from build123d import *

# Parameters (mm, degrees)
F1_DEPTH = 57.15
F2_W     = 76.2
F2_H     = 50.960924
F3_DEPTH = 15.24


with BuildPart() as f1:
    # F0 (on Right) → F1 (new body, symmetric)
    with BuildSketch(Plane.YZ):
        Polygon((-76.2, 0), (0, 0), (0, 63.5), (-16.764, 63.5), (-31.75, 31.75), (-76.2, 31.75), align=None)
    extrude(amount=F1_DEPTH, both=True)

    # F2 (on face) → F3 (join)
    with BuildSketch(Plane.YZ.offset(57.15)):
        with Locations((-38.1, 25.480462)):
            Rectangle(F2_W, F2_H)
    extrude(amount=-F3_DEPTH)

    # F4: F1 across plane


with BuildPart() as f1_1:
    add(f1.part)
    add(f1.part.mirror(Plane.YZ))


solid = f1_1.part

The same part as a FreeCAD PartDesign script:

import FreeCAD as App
import Part
import Sketcher
Q = App.Units.Quantity

doc = App.newDocument("Part")
params = doc.addObject("Spreadsheet::Sheet", "Params")
for row, (alias, value) in enumerate([
    ("sketch1_width", "3 in"),
    ("sketch1_height", "2.5 in"),
    ("sketch1_width2", "0.66 in"),
    ("sketch1_width3", "1.75 in"),
    ("sketch1_height2", "1.25 in"),
    ("pad1_length", "4.5 in"),
    ("sketch2_width", "3 in"),
    ("pad2_length", "0.6 in"),
], start=1):
    params.set(f"A{row}", alias)
    params.set(f"B{row}", "=" + value)
    params.setAlias(f"B{row}", alias)

body = doc.addObject("PartDesign::Body", "Body")

sketch1 = doc.addObject("Sketcher::SketchObject", "Sketch")
body.addObject(sketch1)
sketch1.AttachmentSupport = (doc.YZ_Plane, [""])
sketch1.MapMode = "FlatFace"
sketch1.addGeometry([
    Part.LineSegment(App.Vector(-76, 0, 0), App.Vector(0, 0, 0)),
    Part.LineSegment(App.Vector(0, 0, 0), App.Vector(0, 64, 0)),
    Part.LineSegment(App.Vector(0, 64, 0), App.Vector(-17, 64, 0)),
    Part.LineSegment(App.Vector(-17, 64, 0), App.Vector(-32, 32, 0)),
    Part.LineSegment(App.Vector(-32, 32, 0), App.Vector(-76, 32, 0)),
    Part.LineSegment(App.Vector(-76, 32, 0), App.Vector(-76, 0, 0)),
], False)
sketch1.addConstraint([
    Sketcher.Constraint("Coincident", 0, 2, 1, 1),
    Sketcher.Constraint("Coincident", 1, 2, 2, 1),
    Sketcher.Constraint("Coincident", 2, 2, 3, 1),
    Sketcher.Constraint("Coincident", 3, 2, 4, 1),
    Sketcher.Constraint("Coincident", 4, 2, 5, 1),
    Sketcher.Constraint("Coincident", 5, 2, 0, 1),
    Sketcher.Constraint("Horizontal", 0),
    Sketcher.Constraint("Vertical", 1),
    Sketcher.Constraint("Horizontal", 2),
    Sketcher.Constraint("Horizontal", 4),
    Sketcher.Constraint("Vertical", 5),
    Sketcher.Constraint("Coincident", 0, 2, -1, 1),
    Sketcher.Constraint("DistanceX", 0, 1, 0, 2, Q("3 in")),
    Sketcher.Constraint("DistanceY", 1, 1, 1, 2, Q("2.5 in")),
    Sketcher.Constraint("DistanceX", 2, 2, 2, 1, Q("0.66 in")),
    Sketcher.Constraint("DistanceX", 4, 2, 4, 1, Q("1.75 in")),
    Sketcher.Constraint("DistanceY", 5, 2, 5, 1, Q("1.25 in")),
])
sketch1.setExpression("Constraints[12]", "Params.sketch1_width")
sketch1.setExpression("Constraints[13]", "Params.sketch1_height")
sketch1.setExpression("Constraints[14]", "Params.sketch1_width2")
sketch1.setExpression("Constraints[15]", "Params.sketch1_width3")
sketch1.setExpression("Constraints[16]", "Params.sketch1_height2")
pad1 = doc.addObject("PartDesign::Pad", "Pad")
body.addObject(pad1)
pad1.Profile = sketch1
pad1.setExpression("Length", "Params.pad1_length")
pad1.Midplane = True

sketch2 = doc.addObject("Sketcher::SketchObject", "Sketch001")
body.addObject(sketch2)
sketch2.AttachmentSupport = (doc.YZ_Plane, [""])
sketch2.MapMode = "FlatFace"
sketch2.AttachmentOffset = App.Placement(App.Vector(0, 0, 2.25 * 25.4), App.Rotation())
sketch2.addGeometry([
    Part.LineSegment(App.Vector(-76, 51, 0), App.Vector(-76, 0, 0)),
    Part.LineSegment(App.Vector(-76, 0, 0), App.Vector(0, 0, 0)),
    Part.LineSegment(App.Vector(0, 0, 0), App.Vector(0, 51, 0)),
    Part.LineSegment(App.Vector(0, 51, 0), App.Vector(-76, 51, 0)),
], False)
sketch2.addConstraint([
    Sketcher.Constraint("Coincident", 0, 2, 1, 1),
    Sketcher.Constraint("Coincident", 1, 2, 2, 1),
    Sketcher.Constraint("Coincident", 2, 2, 3, 1),
    Sketcher.Constraint("Coincident", 3, 2, 0, 1),
    Sketcher.Constraint("Vertical", 0),
    Sketcher.Constraint("Horizontal", 1),
    Sketcher.Constraint("Vertical", 2),
    Sketcher.Constraint("Horizontal", 3),
    Sketcher.Constraint("Coincident", 1, 2, -1, 1),
    Sketcher.Constraint("DistanceX", 1, 1, 1, 2, Q("3 in")),
    Sketcher.Constraint("DistanceY", 0, 2, 0, 1, 50.960924),
])
sketch2.setExpression("Constraints[9]", "Params.sketch2_width")
pad2 = doc.addObject("PartDesign::Pad", "Pad001")
body.addObject(pad2)
pad2.Profile = sketch2
pad2.setExpression("Length", "Params.pad2_length")
pad2.Reversed = True
body2 = doc.addObject("PartDesign::Body", "Body001")
doc.recompute()

body2.BaseFeature = body
doc.recompute()

mirroring = doc.addObject("Part::Mirroring", "Mirroring")
mirroring.Source = body
mirroring.Base = App.Vector(0, 0, 0)
mirroring.Normal = App.Vector(1, 0, 0)
body3 = doc.addObject("PartDesign::Body", "Body002")
body3.BaseFeature = mirroring
boolean = doc.addObject("PartDesign::Boolean", "Boolean")
body2.addObject(boolean)
boolean.Type = "Fuse"
boolean.addObjects([body3])
doc.recompute()
mirroring.Visibility = False

doc.recompute()
